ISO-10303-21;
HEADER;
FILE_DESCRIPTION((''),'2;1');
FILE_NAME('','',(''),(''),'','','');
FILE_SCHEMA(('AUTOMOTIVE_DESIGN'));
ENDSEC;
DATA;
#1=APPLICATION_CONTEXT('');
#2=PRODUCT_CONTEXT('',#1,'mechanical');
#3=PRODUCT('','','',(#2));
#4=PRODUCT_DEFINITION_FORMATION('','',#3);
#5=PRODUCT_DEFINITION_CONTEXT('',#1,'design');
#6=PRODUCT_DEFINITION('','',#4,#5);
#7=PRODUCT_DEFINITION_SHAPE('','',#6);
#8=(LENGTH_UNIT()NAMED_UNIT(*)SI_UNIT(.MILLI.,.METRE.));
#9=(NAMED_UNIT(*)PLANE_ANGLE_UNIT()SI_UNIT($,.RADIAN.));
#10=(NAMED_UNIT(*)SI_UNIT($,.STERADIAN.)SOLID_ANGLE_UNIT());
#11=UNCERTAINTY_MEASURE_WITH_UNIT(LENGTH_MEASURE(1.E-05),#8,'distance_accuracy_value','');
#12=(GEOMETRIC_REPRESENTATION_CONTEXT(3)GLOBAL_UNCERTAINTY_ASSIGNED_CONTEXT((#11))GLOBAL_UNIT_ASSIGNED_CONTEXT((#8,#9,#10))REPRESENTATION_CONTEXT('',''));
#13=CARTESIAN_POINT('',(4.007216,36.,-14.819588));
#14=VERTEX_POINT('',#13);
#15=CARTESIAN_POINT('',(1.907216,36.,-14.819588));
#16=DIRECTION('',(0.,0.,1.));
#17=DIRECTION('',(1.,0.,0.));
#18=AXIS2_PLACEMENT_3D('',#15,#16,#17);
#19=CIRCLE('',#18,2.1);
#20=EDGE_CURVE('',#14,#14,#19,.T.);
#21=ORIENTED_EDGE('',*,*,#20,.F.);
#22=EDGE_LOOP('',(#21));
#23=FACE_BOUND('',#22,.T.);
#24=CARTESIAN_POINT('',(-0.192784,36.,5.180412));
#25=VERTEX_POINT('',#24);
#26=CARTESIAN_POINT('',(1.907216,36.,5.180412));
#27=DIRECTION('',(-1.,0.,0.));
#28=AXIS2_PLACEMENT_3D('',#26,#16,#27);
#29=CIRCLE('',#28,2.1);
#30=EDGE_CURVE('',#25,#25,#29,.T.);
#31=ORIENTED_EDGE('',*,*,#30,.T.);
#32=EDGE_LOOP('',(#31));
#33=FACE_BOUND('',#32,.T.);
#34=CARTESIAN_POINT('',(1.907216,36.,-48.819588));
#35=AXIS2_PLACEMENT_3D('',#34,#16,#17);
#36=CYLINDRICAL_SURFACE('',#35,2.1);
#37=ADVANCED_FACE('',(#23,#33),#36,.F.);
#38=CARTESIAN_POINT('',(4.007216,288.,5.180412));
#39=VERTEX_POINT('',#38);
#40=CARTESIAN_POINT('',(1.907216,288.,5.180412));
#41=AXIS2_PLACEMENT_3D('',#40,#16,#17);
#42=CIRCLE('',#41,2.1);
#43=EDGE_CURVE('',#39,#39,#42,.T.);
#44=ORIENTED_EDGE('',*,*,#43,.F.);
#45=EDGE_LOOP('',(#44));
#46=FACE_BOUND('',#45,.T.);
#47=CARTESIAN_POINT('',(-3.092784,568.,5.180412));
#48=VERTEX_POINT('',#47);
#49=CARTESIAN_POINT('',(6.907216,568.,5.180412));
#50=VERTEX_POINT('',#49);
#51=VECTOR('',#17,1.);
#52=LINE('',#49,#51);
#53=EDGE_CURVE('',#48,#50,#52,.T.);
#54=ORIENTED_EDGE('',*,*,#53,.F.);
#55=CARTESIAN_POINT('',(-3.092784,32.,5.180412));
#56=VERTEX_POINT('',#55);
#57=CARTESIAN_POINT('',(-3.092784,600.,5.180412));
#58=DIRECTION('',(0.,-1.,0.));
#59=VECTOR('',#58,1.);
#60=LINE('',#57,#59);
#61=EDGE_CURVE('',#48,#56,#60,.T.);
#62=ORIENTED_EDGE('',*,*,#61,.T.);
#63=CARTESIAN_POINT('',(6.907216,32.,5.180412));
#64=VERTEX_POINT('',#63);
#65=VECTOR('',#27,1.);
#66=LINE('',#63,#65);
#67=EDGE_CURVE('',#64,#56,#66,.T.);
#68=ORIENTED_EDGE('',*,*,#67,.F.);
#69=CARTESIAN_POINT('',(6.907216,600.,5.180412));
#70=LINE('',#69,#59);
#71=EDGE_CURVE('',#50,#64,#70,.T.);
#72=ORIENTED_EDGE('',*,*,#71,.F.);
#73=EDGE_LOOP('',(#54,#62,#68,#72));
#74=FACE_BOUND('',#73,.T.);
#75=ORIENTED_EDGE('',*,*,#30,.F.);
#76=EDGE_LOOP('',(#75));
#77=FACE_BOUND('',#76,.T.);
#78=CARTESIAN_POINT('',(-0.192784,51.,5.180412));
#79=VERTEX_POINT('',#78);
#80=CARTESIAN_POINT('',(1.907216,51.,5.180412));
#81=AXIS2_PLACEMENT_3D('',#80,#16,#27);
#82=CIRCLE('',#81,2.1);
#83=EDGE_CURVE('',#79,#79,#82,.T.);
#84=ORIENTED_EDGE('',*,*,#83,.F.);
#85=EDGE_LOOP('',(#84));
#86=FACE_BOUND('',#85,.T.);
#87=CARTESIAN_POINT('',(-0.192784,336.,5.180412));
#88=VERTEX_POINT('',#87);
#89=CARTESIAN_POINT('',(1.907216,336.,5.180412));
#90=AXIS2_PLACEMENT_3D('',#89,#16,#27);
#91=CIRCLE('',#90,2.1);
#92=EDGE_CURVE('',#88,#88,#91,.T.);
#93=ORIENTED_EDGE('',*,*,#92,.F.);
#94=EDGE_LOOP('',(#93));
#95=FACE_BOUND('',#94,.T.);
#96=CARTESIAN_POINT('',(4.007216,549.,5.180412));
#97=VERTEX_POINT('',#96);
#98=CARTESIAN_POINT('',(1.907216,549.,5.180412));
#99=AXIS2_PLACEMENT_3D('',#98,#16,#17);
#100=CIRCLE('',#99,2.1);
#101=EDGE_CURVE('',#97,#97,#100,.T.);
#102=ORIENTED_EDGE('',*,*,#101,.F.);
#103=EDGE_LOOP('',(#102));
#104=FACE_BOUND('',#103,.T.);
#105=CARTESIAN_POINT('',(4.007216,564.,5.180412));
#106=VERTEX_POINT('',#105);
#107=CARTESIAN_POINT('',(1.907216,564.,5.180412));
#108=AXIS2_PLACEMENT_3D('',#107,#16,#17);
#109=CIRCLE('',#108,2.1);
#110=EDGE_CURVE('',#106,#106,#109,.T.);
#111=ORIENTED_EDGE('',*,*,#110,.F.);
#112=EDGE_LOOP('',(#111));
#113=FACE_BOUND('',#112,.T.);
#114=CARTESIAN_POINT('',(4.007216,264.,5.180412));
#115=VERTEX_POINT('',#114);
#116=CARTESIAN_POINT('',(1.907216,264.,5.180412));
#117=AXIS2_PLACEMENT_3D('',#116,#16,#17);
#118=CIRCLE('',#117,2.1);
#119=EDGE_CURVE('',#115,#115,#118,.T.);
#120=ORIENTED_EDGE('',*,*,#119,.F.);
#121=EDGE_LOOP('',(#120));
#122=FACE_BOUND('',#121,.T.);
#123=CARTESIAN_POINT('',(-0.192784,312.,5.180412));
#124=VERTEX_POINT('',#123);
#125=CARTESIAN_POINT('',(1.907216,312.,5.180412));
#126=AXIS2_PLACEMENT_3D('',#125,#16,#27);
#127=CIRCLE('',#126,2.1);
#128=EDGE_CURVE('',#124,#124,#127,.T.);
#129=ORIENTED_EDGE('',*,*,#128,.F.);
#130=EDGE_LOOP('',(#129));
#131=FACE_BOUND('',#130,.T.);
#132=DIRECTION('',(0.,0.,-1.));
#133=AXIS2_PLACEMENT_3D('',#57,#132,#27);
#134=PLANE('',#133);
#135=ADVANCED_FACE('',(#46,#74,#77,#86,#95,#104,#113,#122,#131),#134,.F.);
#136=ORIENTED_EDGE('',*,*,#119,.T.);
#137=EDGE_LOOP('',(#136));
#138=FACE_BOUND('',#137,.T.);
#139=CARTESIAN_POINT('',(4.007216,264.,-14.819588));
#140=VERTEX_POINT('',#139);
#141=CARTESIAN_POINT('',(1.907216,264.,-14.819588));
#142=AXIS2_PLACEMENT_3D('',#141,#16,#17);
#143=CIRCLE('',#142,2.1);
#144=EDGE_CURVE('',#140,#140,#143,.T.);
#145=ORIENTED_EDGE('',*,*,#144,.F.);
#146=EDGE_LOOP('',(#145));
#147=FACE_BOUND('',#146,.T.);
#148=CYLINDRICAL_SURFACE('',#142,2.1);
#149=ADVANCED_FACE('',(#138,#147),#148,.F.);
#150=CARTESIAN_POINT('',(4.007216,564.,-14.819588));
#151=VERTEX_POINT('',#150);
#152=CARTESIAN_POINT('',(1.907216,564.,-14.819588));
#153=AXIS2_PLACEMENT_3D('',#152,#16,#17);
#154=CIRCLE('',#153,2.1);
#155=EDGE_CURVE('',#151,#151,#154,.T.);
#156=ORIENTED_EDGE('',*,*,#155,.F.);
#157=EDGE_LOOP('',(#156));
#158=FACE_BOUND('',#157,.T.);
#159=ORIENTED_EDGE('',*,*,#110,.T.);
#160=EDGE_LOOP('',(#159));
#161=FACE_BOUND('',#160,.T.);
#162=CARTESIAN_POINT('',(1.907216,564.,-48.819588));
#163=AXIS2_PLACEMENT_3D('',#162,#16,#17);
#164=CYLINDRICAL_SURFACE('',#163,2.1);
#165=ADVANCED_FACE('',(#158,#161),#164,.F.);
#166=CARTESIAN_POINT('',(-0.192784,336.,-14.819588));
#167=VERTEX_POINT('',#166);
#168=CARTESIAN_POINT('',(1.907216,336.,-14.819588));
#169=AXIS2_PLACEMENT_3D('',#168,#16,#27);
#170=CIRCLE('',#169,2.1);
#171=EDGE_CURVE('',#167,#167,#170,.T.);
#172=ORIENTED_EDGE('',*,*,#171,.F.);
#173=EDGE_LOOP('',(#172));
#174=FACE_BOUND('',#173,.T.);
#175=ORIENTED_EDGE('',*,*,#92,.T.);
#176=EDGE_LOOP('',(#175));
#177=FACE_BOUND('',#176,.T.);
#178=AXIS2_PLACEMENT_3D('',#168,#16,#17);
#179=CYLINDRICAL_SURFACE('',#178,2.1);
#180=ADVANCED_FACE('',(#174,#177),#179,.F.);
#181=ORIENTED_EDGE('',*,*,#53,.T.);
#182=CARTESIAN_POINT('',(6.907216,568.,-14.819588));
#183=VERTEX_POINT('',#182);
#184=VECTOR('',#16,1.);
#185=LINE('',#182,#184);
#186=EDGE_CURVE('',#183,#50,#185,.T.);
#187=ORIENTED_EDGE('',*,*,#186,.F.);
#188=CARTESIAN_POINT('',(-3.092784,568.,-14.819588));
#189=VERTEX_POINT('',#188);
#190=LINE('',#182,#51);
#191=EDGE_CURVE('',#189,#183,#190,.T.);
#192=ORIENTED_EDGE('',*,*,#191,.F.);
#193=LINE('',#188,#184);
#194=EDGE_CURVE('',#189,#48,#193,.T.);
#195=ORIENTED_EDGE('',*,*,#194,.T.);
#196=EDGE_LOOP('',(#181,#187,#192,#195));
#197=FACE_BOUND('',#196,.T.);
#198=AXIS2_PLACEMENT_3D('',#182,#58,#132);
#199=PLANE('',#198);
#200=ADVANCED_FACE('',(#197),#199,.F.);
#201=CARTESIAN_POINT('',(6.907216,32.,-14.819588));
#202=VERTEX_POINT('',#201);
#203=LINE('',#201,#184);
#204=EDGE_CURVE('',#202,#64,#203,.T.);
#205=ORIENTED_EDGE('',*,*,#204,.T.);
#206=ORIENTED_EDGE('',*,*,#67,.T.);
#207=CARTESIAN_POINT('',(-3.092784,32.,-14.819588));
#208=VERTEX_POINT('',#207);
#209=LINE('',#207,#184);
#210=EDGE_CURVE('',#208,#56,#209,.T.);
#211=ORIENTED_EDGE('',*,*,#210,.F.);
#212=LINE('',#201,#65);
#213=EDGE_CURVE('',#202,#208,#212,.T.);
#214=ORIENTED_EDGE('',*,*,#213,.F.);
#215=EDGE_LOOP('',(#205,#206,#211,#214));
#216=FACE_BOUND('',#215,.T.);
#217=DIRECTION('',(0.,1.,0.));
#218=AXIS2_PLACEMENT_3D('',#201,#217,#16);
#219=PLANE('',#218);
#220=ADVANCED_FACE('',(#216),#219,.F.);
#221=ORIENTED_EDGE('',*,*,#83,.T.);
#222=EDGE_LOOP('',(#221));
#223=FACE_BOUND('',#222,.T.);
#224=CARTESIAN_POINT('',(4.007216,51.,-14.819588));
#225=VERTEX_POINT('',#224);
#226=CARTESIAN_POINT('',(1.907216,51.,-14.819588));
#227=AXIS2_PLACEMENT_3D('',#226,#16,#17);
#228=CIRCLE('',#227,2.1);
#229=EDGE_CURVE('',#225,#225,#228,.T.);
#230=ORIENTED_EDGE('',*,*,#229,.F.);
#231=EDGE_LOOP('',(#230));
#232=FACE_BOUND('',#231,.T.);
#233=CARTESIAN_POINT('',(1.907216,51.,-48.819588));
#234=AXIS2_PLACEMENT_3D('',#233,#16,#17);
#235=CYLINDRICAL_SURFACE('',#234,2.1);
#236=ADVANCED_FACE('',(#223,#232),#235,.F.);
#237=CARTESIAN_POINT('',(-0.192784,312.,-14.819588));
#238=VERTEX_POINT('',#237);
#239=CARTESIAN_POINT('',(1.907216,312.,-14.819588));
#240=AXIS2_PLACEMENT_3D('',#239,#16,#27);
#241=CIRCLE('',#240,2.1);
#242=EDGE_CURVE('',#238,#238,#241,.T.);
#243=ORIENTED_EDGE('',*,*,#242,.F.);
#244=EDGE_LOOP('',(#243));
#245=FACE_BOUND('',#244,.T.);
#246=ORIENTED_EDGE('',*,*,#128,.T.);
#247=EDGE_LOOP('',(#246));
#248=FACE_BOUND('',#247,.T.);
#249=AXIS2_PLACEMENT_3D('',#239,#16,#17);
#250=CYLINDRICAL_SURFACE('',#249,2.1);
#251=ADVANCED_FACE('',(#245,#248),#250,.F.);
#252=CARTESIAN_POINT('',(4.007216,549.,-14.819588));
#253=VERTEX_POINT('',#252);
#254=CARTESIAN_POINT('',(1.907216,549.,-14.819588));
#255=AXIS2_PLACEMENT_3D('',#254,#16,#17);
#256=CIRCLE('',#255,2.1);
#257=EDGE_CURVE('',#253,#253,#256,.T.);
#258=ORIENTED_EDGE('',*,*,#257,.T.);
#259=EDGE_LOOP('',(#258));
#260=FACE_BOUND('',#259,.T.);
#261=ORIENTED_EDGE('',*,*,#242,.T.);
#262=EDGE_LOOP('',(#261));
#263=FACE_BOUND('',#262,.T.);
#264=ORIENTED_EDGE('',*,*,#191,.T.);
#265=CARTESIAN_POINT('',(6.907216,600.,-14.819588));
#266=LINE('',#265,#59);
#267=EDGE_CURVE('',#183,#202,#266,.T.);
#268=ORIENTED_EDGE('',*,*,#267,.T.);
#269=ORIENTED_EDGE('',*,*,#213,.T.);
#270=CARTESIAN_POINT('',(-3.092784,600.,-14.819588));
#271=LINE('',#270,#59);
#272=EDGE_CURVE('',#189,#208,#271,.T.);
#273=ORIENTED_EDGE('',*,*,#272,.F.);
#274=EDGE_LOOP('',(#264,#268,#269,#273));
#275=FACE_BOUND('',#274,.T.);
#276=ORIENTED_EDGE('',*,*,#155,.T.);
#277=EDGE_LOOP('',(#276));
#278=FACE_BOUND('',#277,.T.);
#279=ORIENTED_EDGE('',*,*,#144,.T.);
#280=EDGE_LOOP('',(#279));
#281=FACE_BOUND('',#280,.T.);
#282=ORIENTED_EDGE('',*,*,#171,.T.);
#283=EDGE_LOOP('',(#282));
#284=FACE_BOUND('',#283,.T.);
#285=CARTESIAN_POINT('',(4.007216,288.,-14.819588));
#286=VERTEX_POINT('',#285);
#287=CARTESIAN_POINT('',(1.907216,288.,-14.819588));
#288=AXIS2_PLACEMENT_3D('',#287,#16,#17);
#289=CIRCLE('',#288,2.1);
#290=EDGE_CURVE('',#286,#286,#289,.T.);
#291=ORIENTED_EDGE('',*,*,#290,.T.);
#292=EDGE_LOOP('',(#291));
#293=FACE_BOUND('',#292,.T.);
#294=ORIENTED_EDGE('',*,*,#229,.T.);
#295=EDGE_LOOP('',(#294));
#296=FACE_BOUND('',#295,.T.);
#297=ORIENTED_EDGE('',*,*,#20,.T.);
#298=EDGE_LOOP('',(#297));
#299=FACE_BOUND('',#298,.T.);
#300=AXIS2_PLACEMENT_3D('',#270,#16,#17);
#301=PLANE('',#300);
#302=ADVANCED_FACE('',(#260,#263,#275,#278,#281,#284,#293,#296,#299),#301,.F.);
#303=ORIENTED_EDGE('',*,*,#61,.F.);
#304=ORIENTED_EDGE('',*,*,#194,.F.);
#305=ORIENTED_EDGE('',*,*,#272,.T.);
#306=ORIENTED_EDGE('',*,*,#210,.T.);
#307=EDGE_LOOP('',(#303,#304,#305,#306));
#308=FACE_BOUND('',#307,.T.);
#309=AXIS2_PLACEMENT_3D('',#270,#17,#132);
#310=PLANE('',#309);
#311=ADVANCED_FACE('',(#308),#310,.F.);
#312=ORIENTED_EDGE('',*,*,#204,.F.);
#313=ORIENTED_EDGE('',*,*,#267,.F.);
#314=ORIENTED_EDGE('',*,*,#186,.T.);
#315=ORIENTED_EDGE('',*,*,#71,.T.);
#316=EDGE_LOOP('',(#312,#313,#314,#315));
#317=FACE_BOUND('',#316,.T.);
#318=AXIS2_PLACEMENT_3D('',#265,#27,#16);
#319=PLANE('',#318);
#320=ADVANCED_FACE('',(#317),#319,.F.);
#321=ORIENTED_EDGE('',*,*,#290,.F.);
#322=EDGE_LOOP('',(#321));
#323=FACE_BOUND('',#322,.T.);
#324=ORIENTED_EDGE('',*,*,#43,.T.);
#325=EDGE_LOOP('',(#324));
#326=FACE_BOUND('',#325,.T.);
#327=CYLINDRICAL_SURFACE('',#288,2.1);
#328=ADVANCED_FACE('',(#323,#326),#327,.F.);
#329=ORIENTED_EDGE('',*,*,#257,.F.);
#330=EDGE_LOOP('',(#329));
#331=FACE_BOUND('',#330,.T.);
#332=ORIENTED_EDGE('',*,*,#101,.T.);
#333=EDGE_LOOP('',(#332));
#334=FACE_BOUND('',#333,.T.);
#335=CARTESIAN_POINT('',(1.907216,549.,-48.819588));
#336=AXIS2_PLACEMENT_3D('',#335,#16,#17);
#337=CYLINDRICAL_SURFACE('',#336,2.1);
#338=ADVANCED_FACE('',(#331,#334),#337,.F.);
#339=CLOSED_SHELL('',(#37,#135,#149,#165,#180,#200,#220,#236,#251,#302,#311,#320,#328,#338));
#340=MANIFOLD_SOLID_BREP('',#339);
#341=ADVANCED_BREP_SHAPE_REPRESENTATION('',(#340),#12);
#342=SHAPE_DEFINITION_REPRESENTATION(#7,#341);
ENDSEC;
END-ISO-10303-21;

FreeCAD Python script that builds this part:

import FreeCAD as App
import Part
import Sketcher
from FreeCAD import Vector
Q = App.Units.Quantity


def add_polygon(sketch, points):
    """Adds a closed chain of lines whose ends are joined by coincident constraints."""
    first, n = sketch.GeometryCount, len(points)
    for a, b in zip(points, points[1:] + points[:1]):
        sketch.addGeometry(Part.LineSegment(App.Vector(*a, 0), App.Vector(*b, 0)), False)
    for i in range(n):
        sketch.addConstraint(Sketcher.Constraint("Coincident", first + i, 2, first + (i + 1) % n, 1))

doc = App.newDocument("Part")
params = doc.addObject("Spreadsheet::Sheet", "Params")
for row, (alias, value) in enumerate([
    ("sketch1_width", "10 mm"),
    ("sketch1_height", "20 mm"),
    ("pad1_length", "600 mm"),
    ("sketch2_width", "20 mm"),
    ("sketch2_height", "10 mm"),
    ("pocket1_length", "50 mm"),
    ("sketch3_width", "10 mm"),
    ("pocket2_length", "82 mm"),
    ("sketch4_diameter", "4.2 mm"),
    ("sketch5_diameter", "4.2 mm"),
    ("pocket4_length", "54 mm"),
    ("sketch6_width", "10 mm"),
    ("sketch6_height", "22 mm"),
], start=1):
    params.set(f"A{row}", alias)
    params.set(f"B{row}", "=" + value)
    params.setAlias(f"B{row}", alias)

body = doc.addObject("PartDesign::Body", "Body")

sketch1 = doc.addObject("Sketcher::SketchObject", "Sketch")
body.addObject(sketch1)
sketch1.AttachmentSupport = (doc.XZ_Plane, [""])
sketch1.MapMode = "FlatFace"
add_polygon(sketch1, [(-3, -15), (-3, 5), (7, 5), (7, -15)])
sketch1.addConstraint([
    Sketcher.Constraint("Vertical", 0),
    Sketcher.Constraint("Horizontal", 1),
    Sketcher.Constraint("Vertical", 2),
    Sketcher.Constraint("Horizontal", 3),
    Sketcher.Constraint("DistanceX", 1, 1, 1, 2, Q("10 mm")),
    Sketcher.Constraint("DistanceY", 0, 1, 0, 2, Q("20 mm")),
    Sketcher.Constraint("DistanceX", 0, 2, -1, 1, Q("3.092784 mm")),
    Sketcher.Constraint("DistanceY", -1, 1, 0, 2, Q("5.180412 mm")),
])
sketch1.setExpression("Constraints[8]", "Params.sketch1_width")
sketch1.setExpression("Constraints[9]", "Params.sketch1_height")
pad1 = doc.addObject("PartDesign::Pad", "Pad")
body.addObject(pad1)
pad1.Profile = sketch1
pad1.setExpression("Length", "Params.pad1_length")
pad1.Reversed = True

sketch2 = doc.addObject("Sketcher::SketchObject", "Sketch001")
body.addObject(sketch2)
sketch2.AttachmentSupport = (doc.XY_Plane, [""])
sketch2.MapMode = "FlatFace"
sketch2.AttachmentOffset = App.Placement(Vector(0, 0, -14.819588), App.Rotation())
add_polygon(sketch2, [(7, 600), (7, 590), (-13, 590), (-13, 600)])
sketch2.addConstraint([
    Sketcher.Constraint("Vertical", 0),
    Sketcher.Constraint("Horizontal", 1),
    Sketcher.Constraint("Vertical", 2),
    Sketcher.Constraint("Horizontal", 3),
    Sketcher.Constraint("DistanceX", 1, 2, 1, 1, Q("20 mm")),
    Sketcher.Constraint("DistanceY", 0, 2, 0, 1, Q("10 mm")),
    Sketcher.Constraint("DistanceY", -1, 1, 0, 2, Q("590 mm")),
    Sketcher.Constraint("DistanceX", -1, 1, 0, 2, Q("6.907216 mm")),
])
sketch2.setExpression("Constraints[8]", "Params.sketch2_width")
sketch2.setExpression("Constraints[9]", "Params.sketch2_height")
pocket1 = doc.addObject("PartDesign::Pocket", "Pocket")
body.addObject(pocket1)
pocket1.Profile = sketch2
pocket1.setExpression("Length", "Params.pocket1_length")
pocket1.Reversed = True

sketch3 = doc.addObject("Sketcher::SketchObject", "Sketch002")
body.addObject(sketch3)
sketch3.AttachmentSupport = (doc.XY_Plane, [""])
sketch3.MapMode = "FlatFace"
sketch3.AttachmentOffset = App.Placement(Vector(0, 0, -14.819588), App.Rotation())
add_polygon(sketch3, [(7, 10), (7, 0), (-3, 0), (-3, 10)])
sketch3.addConstraint([
    Sketcher.Constraint("Vertical", 0),
    Sketcher.Constraint("Horizontal", 1),
    Sketcher.Constraint("Vertical", 2),
    Sketcher.Constraint("Horizontal", 3),
    Sketcher.Constraint("PointOnObject", 0, 2, -1),
    Sketcher.Constraint("Equal", 3, 0),
    Sketcher.Constraint("DistanceX", 1, 2, 1, 1, Q("10 mm")),
    Sketcher.Constraint("DistanceX", -1, 1, 0, 2, Q("6.907216 mm")),
])
sketch3.setExpression("Constraints[10]", "Params.sketch3_width")
pocket2 = doc.addObject("PartDesign::Pocket", "Pocket001")
body.addObject(pocket2)
pocket2.Profile = sketch3
pocket2.setExpression("Length", "Params.pocket2_length")
pocket2.Reversed = True

sketch4 = doc.addObject("Sketcher::SketchObject", "Sketch003")
body.addObject(sketch4)
sketch4.AttachmentSupport = (doc.XY_Plane, [""])
sketch4.MapMode = "FlatFace"
sketch4.AttachmentOffset = App.Placement(Vector(0, 0, 5.180412), App.Rotation())
sketch4.addGeometry([
    Part.Circle(Vector(1.9, 264, 0), Vector(0, 0, 1), 2.1),
    Part.Circle(Vector(1.9, 288, 0), Vector(0, 0, 1), 2.1),
    Part.Circle(Vector(1.9, 312, 0), Vector(0, 0, 1), 2.1),
    Part.Circle(Vector(1.9, 336, 0), Vector(0, 0, 1), 2.1),
], False)
sketch4.addConstraint([
    Sketcher.Constraint("Equal", 0, 1),
    Sketcher.Constraint("Equal", 1, 2),
    Sketcher.Constraint("Equal", 2, 3),
    Sketcher.Constraint("Vertical", 0, 3, 1, 3),
    Sketcher.Constraint("Vertical", 1, 3, 2, 3),
    Sketcher.Constraint("Vertical", 2, 3, 3, 3),
    Sketcher.Constraint("Diameter", 0, Q("4.2 mm")),
    Sketcher.Constraint("DistanceY", -1, 1, 0, 3, Q("264 mm")),
    Sketcher.Constraint("DistanceY", -1, 1, 1, 3, Q("288 mm")),
    Sketcher.Constraint("DistanceY", -1, 1, 2, 3, Q("312 mm")),
    Sketcher.Constraint("DistanceY", -1, 1, 3, 3, Q("336 mm")),
    Sketcher.Constraint("DistanceX", -1, 1, 0, 3, Q("1.907216 mm")),
])
sketch4.setExpression("Constraints[6]", "Params.sketch4_diameter")
pocket3 = doc.addObject("PartDesign::Pocket", "Pocket002")
body.addObject(pocket3)
pocket3.Profile = sketch4
pocket3.Type = "ThroughAll"

sketch5 = doc.addObject("Sketcher::SketchObject", "Sketch004")
body.addObject(sketch5)
sketch5.AttachmentSupport = (doc.XY_Plane, [""])
sketch5.MapMode = "FlatFace"
sketch5.AttachmentOffset = App.Placement(Vector(0, 0, 5.180412), App.Rotation())
sketch5.addGeometry([
    Part.Circle(Vector(1.9, 564, 0), Vector(0, 0, 1), 2.1),
    Part.Circle(Vector(1.9, 549, 0), Vector(0, 0, 1), 2.1),
    Part.Circle(Vector(1.9, 36, 0), Vector(0, 0, 1), 2.1),
    Part.Circle(Vector(1.9, 51, 0), Vector(0, 0, 1), 2.1),
    Part.Circle(Vector(1.9, 583, 0), Vector(0, 0, 1), 2.1),
    Part.Circle(Vector(1.9, 17, 0), Vector(0, 0, 1), 2.1),
], False)
sketch5.addConstraint([
    Sketcher.Constraint("Equal", 0, 1),
    Sketcher.Constraint("Equal", 1, 2),
    Sketcher.Constraint("Equal", 2, 3),
    Sketcher.Constraint("Equal", 3, 4),
    Sketcher.Constraint("Equal", 4, 5),
    Sketcher.Constraint("Vertical", 0, 3, 1, 3),
    Sketcher.Constraint("Vertical", 1, 3, 2, 3),
    Sketcher.Constraint("Vertical", 2, 3, 3, 3),
    Sketcher.Constraint("Vertical", 3, 3, 4, 3),
    Sketcher.Constraint("Vertical", 4, 3, 5, 3),
    Sketcher.Constraint("Diameter", 0, Q("4.2 mm")),
    Sketcher.Constraint("DistanceY", -1, 1, 0, 3, Q("564 mm")),
    Sketcher.Constraint("DistanceY", -1, 1, 1, 3, Q("549 mm")),
    Sketcher.Constraint("DistanceY", -1, 1, 2, 3, Q("36 mm")),
    Sketcher.Constraint("DistanceY", -1, 1, 3, 3, Q("51 mm")),
    Sketcher.Constraint("DistanceY", -1, 1, 4, 3, Q("583 mm")),
    Sketcher.Constraint("DistanceY", -1, 1, 5, 3, Q("17 mm")),
    Sketcher.Constraint("DistanceX", -1, 1, 0, 3, Q("1.907216 mm")),
])
sketch5.setExpression("Constraints[10]", "Params.sketch5_diameter")
pocket4 = doc.addObject("PartDesign::Pocket", "Pocket003")
body.addObject(pocket4)
pocket4.Profile = sketch5
pocket4.setExpression("Length", "Params.pocket4_length")

sketch6 = doc.addObject("Sketcher::SketchObject", "Sketch005")
body.addObject(sketch6)
sketch6.AttachmentSupport = (doc.XY_Plane, [""])
sketch6.MapMode = "FlatFace"
sketch6.AttachmentOffset = App.Placement(Vector(0, 0, 5.180412), App.Rotation())
add_polygon(sketch6, [(-3, 32), (-3, 10), (7, 10), (7, 32)])
add_polygon(sketch6, [(-3, 590), (-3, 568), (7, 568), (7, 590)])
sketch6.addConstraint([
    Sketcher.Constraint("Vertical", 0),
    Sketcher.Constraint("Horizontal", 1),
    Sketcher.Constraint("Vertical", 2),
    Sketcher.Constraint("Horizontal", 3),
    Sketcher.Constraint("Vertical", 4),
    Sketcher.Constraint("Horizontal", 5),
    Sketcher.Constraint("Vertical", 6),
    Sketcher.Constraint("Horizontal", 7),
    Sketcher.Constraint("Vertical", 3, 2, 4, 2),
    Sketcher.Constraint("Vertical", 2, 2, 5, 2),
    Sketcher.Constraint("Equal", 2, 4),
    Sketcher.Constraint("DistanceX", 1, 1, 1, 2, Q("10 mm")),
    Sketcher.Constraint("DistanceY", 0, 2, 0, 1, Q("22 mm")),
    Sketcher.Constraint("DistanceY", -1, 1, 0, 2, Q("10 mm")),
    Sketcher.Constraint("DistanceY", -1, 1, 4, 2, Q("568 mm")),
    Sketcher.Constraint("DistanceX", 0, 2, -1, 1, Q("3.092784 mm")),
])
sketch6.setExpression("Constraints[19]", "Params.sketch6_width")
sketch6.setExpression("Constraints[20]", "Params.sketch6_height")
pocket5 = doc.addObject("PartDesign::Pocket", "Pocket004")
body.addObject(pocket5)
pocket5.Profile = sketch6
pocket5.Type = "ThroughAll"

doc.recompute()
